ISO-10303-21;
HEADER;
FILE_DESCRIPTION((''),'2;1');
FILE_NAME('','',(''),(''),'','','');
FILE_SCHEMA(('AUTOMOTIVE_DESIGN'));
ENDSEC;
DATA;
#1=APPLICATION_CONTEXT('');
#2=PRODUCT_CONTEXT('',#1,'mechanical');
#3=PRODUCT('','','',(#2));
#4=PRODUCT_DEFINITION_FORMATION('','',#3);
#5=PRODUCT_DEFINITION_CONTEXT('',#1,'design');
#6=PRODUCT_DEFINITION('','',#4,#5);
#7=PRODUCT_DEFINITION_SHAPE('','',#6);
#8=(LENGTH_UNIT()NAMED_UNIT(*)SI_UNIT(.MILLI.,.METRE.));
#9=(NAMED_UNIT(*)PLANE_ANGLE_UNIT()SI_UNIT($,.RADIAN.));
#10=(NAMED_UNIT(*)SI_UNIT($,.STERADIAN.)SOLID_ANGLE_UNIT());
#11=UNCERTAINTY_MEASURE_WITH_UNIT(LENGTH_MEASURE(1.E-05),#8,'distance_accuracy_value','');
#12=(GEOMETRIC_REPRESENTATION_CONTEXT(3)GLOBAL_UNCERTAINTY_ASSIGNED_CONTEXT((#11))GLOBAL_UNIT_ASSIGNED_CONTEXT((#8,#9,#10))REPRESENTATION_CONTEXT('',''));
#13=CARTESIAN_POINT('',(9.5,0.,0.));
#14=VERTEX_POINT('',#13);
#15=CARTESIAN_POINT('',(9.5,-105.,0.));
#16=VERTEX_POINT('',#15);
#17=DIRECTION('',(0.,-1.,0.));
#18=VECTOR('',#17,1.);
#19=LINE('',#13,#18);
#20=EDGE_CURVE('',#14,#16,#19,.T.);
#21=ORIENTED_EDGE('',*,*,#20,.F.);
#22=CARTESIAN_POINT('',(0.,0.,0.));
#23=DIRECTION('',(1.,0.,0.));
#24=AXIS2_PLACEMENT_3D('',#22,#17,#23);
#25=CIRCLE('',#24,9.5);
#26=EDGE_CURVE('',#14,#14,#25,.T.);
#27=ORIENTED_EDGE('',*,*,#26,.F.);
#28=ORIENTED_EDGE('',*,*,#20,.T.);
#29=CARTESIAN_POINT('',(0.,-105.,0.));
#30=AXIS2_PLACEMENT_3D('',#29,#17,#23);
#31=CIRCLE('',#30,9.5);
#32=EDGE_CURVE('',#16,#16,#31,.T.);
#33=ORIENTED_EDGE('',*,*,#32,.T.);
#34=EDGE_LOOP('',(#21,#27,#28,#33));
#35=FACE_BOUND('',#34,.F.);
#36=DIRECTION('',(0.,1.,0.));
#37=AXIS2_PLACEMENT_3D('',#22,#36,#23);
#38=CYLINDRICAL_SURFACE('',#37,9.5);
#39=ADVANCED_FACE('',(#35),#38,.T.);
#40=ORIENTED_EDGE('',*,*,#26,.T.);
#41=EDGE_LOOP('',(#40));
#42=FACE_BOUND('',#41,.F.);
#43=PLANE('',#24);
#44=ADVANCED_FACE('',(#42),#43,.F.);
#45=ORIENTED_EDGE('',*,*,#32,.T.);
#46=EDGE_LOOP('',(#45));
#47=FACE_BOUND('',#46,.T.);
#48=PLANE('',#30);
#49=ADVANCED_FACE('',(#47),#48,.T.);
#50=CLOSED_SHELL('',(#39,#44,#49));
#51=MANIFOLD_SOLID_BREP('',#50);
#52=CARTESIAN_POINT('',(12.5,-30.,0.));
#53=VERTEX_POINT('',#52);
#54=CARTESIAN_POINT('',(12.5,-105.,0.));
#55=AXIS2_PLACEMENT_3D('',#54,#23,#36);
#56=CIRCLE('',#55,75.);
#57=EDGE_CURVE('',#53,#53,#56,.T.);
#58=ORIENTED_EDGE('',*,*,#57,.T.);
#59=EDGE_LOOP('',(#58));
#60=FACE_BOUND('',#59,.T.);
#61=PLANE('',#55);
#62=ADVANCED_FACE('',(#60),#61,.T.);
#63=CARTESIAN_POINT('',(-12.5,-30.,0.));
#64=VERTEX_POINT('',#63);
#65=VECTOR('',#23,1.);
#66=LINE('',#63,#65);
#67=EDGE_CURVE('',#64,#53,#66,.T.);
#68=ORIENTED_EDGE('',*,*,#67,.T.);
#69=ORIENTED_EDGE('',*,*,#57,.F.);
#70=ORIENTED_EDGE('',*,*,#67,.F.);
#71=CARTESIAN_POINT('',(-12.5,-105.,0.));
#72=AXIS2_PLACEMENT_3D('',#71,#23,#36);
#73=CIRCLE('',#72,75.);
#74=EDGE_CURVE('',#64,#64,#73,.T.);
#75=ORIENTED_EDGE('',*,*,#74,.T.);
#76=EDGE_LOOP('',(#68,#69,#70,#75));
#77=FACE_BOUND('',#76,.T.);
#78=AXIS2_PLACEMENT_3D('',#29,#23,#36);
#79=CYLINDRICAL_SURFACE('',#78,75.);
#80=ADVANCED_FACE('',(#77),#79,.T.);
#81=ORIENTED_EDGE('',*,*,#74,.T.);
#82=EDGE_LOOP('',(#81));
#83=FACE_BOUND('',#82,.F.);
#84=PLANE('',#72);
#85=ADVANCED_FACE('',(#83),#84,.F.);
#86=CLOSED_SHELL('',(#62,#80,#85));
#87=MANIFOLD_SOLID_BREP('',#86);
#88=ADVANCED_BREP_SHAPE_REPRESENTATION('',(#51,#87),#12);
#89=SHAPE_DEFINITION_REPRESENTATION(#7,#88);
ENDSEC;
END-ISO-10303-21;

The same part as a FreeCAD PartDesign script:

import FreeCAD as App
import Part
import Sketcher

V = App.Vector

doc = App.newDocument("Part")
body = doc.addObject("PartDesign::Body", "Body")

sketch1 = doc.addObject("Sketcher::SketchObject", "Sketch")
body.addObject(sketch1)
sketch1.AttachmentSupport = (doc.XZ_Plane, [""])
sketch1.MapMode = "FlatFace"
sketch1.addGeometry(Part.Circle(V(0, 0, 0), V(0, 0, 1), 9.5), False)
sketch1.addConstraint(Sketcher.Constraint("Coincident", 0, 3, -1, 1))
sketch1.addConstraint(Sketcher.Constraint("Diameter", 0, 19.0))
pad1 = doc.addObject("PartDesign::Pad", "Pad")
body.addObject(pad1)
pad1.Profile = sketch1
pad1.Length = 105
body2 = doc.addObject("PartDesign::Body", "Body001")

sketch2 = doc.addObject("Sketcher::SketchObject", "Sketch001")
body2.addObject(sketch2)
sketch2.AttachmentSupport = (doc.getObject("YZ_Plane001"), [""])
sketch2.MapMode = "FlatFace"
sketch2.addGeometry(Part.Circle(V(-105, 0, 0), V(0, 0, 1), 75), False)
sketch2.addConstraint(Sketcher.Constraint("PointOnObject", 0, 3, -1))
sketch2.addConstraint(Sketcher.Constraint("Diameter", 0, 150.0))
sketch2.addConstraint(Sketcher.Constraint("DistanceX", 0, 3, -1, 1, 105.0))
pad2 = doc.addObject("PartDesign::Pad", "Pad001")
body2.addObject(pad2)
pad2.Profile = sketch2
pad2.Length = 25
pad2.Midplane = True

doc.recompute()
